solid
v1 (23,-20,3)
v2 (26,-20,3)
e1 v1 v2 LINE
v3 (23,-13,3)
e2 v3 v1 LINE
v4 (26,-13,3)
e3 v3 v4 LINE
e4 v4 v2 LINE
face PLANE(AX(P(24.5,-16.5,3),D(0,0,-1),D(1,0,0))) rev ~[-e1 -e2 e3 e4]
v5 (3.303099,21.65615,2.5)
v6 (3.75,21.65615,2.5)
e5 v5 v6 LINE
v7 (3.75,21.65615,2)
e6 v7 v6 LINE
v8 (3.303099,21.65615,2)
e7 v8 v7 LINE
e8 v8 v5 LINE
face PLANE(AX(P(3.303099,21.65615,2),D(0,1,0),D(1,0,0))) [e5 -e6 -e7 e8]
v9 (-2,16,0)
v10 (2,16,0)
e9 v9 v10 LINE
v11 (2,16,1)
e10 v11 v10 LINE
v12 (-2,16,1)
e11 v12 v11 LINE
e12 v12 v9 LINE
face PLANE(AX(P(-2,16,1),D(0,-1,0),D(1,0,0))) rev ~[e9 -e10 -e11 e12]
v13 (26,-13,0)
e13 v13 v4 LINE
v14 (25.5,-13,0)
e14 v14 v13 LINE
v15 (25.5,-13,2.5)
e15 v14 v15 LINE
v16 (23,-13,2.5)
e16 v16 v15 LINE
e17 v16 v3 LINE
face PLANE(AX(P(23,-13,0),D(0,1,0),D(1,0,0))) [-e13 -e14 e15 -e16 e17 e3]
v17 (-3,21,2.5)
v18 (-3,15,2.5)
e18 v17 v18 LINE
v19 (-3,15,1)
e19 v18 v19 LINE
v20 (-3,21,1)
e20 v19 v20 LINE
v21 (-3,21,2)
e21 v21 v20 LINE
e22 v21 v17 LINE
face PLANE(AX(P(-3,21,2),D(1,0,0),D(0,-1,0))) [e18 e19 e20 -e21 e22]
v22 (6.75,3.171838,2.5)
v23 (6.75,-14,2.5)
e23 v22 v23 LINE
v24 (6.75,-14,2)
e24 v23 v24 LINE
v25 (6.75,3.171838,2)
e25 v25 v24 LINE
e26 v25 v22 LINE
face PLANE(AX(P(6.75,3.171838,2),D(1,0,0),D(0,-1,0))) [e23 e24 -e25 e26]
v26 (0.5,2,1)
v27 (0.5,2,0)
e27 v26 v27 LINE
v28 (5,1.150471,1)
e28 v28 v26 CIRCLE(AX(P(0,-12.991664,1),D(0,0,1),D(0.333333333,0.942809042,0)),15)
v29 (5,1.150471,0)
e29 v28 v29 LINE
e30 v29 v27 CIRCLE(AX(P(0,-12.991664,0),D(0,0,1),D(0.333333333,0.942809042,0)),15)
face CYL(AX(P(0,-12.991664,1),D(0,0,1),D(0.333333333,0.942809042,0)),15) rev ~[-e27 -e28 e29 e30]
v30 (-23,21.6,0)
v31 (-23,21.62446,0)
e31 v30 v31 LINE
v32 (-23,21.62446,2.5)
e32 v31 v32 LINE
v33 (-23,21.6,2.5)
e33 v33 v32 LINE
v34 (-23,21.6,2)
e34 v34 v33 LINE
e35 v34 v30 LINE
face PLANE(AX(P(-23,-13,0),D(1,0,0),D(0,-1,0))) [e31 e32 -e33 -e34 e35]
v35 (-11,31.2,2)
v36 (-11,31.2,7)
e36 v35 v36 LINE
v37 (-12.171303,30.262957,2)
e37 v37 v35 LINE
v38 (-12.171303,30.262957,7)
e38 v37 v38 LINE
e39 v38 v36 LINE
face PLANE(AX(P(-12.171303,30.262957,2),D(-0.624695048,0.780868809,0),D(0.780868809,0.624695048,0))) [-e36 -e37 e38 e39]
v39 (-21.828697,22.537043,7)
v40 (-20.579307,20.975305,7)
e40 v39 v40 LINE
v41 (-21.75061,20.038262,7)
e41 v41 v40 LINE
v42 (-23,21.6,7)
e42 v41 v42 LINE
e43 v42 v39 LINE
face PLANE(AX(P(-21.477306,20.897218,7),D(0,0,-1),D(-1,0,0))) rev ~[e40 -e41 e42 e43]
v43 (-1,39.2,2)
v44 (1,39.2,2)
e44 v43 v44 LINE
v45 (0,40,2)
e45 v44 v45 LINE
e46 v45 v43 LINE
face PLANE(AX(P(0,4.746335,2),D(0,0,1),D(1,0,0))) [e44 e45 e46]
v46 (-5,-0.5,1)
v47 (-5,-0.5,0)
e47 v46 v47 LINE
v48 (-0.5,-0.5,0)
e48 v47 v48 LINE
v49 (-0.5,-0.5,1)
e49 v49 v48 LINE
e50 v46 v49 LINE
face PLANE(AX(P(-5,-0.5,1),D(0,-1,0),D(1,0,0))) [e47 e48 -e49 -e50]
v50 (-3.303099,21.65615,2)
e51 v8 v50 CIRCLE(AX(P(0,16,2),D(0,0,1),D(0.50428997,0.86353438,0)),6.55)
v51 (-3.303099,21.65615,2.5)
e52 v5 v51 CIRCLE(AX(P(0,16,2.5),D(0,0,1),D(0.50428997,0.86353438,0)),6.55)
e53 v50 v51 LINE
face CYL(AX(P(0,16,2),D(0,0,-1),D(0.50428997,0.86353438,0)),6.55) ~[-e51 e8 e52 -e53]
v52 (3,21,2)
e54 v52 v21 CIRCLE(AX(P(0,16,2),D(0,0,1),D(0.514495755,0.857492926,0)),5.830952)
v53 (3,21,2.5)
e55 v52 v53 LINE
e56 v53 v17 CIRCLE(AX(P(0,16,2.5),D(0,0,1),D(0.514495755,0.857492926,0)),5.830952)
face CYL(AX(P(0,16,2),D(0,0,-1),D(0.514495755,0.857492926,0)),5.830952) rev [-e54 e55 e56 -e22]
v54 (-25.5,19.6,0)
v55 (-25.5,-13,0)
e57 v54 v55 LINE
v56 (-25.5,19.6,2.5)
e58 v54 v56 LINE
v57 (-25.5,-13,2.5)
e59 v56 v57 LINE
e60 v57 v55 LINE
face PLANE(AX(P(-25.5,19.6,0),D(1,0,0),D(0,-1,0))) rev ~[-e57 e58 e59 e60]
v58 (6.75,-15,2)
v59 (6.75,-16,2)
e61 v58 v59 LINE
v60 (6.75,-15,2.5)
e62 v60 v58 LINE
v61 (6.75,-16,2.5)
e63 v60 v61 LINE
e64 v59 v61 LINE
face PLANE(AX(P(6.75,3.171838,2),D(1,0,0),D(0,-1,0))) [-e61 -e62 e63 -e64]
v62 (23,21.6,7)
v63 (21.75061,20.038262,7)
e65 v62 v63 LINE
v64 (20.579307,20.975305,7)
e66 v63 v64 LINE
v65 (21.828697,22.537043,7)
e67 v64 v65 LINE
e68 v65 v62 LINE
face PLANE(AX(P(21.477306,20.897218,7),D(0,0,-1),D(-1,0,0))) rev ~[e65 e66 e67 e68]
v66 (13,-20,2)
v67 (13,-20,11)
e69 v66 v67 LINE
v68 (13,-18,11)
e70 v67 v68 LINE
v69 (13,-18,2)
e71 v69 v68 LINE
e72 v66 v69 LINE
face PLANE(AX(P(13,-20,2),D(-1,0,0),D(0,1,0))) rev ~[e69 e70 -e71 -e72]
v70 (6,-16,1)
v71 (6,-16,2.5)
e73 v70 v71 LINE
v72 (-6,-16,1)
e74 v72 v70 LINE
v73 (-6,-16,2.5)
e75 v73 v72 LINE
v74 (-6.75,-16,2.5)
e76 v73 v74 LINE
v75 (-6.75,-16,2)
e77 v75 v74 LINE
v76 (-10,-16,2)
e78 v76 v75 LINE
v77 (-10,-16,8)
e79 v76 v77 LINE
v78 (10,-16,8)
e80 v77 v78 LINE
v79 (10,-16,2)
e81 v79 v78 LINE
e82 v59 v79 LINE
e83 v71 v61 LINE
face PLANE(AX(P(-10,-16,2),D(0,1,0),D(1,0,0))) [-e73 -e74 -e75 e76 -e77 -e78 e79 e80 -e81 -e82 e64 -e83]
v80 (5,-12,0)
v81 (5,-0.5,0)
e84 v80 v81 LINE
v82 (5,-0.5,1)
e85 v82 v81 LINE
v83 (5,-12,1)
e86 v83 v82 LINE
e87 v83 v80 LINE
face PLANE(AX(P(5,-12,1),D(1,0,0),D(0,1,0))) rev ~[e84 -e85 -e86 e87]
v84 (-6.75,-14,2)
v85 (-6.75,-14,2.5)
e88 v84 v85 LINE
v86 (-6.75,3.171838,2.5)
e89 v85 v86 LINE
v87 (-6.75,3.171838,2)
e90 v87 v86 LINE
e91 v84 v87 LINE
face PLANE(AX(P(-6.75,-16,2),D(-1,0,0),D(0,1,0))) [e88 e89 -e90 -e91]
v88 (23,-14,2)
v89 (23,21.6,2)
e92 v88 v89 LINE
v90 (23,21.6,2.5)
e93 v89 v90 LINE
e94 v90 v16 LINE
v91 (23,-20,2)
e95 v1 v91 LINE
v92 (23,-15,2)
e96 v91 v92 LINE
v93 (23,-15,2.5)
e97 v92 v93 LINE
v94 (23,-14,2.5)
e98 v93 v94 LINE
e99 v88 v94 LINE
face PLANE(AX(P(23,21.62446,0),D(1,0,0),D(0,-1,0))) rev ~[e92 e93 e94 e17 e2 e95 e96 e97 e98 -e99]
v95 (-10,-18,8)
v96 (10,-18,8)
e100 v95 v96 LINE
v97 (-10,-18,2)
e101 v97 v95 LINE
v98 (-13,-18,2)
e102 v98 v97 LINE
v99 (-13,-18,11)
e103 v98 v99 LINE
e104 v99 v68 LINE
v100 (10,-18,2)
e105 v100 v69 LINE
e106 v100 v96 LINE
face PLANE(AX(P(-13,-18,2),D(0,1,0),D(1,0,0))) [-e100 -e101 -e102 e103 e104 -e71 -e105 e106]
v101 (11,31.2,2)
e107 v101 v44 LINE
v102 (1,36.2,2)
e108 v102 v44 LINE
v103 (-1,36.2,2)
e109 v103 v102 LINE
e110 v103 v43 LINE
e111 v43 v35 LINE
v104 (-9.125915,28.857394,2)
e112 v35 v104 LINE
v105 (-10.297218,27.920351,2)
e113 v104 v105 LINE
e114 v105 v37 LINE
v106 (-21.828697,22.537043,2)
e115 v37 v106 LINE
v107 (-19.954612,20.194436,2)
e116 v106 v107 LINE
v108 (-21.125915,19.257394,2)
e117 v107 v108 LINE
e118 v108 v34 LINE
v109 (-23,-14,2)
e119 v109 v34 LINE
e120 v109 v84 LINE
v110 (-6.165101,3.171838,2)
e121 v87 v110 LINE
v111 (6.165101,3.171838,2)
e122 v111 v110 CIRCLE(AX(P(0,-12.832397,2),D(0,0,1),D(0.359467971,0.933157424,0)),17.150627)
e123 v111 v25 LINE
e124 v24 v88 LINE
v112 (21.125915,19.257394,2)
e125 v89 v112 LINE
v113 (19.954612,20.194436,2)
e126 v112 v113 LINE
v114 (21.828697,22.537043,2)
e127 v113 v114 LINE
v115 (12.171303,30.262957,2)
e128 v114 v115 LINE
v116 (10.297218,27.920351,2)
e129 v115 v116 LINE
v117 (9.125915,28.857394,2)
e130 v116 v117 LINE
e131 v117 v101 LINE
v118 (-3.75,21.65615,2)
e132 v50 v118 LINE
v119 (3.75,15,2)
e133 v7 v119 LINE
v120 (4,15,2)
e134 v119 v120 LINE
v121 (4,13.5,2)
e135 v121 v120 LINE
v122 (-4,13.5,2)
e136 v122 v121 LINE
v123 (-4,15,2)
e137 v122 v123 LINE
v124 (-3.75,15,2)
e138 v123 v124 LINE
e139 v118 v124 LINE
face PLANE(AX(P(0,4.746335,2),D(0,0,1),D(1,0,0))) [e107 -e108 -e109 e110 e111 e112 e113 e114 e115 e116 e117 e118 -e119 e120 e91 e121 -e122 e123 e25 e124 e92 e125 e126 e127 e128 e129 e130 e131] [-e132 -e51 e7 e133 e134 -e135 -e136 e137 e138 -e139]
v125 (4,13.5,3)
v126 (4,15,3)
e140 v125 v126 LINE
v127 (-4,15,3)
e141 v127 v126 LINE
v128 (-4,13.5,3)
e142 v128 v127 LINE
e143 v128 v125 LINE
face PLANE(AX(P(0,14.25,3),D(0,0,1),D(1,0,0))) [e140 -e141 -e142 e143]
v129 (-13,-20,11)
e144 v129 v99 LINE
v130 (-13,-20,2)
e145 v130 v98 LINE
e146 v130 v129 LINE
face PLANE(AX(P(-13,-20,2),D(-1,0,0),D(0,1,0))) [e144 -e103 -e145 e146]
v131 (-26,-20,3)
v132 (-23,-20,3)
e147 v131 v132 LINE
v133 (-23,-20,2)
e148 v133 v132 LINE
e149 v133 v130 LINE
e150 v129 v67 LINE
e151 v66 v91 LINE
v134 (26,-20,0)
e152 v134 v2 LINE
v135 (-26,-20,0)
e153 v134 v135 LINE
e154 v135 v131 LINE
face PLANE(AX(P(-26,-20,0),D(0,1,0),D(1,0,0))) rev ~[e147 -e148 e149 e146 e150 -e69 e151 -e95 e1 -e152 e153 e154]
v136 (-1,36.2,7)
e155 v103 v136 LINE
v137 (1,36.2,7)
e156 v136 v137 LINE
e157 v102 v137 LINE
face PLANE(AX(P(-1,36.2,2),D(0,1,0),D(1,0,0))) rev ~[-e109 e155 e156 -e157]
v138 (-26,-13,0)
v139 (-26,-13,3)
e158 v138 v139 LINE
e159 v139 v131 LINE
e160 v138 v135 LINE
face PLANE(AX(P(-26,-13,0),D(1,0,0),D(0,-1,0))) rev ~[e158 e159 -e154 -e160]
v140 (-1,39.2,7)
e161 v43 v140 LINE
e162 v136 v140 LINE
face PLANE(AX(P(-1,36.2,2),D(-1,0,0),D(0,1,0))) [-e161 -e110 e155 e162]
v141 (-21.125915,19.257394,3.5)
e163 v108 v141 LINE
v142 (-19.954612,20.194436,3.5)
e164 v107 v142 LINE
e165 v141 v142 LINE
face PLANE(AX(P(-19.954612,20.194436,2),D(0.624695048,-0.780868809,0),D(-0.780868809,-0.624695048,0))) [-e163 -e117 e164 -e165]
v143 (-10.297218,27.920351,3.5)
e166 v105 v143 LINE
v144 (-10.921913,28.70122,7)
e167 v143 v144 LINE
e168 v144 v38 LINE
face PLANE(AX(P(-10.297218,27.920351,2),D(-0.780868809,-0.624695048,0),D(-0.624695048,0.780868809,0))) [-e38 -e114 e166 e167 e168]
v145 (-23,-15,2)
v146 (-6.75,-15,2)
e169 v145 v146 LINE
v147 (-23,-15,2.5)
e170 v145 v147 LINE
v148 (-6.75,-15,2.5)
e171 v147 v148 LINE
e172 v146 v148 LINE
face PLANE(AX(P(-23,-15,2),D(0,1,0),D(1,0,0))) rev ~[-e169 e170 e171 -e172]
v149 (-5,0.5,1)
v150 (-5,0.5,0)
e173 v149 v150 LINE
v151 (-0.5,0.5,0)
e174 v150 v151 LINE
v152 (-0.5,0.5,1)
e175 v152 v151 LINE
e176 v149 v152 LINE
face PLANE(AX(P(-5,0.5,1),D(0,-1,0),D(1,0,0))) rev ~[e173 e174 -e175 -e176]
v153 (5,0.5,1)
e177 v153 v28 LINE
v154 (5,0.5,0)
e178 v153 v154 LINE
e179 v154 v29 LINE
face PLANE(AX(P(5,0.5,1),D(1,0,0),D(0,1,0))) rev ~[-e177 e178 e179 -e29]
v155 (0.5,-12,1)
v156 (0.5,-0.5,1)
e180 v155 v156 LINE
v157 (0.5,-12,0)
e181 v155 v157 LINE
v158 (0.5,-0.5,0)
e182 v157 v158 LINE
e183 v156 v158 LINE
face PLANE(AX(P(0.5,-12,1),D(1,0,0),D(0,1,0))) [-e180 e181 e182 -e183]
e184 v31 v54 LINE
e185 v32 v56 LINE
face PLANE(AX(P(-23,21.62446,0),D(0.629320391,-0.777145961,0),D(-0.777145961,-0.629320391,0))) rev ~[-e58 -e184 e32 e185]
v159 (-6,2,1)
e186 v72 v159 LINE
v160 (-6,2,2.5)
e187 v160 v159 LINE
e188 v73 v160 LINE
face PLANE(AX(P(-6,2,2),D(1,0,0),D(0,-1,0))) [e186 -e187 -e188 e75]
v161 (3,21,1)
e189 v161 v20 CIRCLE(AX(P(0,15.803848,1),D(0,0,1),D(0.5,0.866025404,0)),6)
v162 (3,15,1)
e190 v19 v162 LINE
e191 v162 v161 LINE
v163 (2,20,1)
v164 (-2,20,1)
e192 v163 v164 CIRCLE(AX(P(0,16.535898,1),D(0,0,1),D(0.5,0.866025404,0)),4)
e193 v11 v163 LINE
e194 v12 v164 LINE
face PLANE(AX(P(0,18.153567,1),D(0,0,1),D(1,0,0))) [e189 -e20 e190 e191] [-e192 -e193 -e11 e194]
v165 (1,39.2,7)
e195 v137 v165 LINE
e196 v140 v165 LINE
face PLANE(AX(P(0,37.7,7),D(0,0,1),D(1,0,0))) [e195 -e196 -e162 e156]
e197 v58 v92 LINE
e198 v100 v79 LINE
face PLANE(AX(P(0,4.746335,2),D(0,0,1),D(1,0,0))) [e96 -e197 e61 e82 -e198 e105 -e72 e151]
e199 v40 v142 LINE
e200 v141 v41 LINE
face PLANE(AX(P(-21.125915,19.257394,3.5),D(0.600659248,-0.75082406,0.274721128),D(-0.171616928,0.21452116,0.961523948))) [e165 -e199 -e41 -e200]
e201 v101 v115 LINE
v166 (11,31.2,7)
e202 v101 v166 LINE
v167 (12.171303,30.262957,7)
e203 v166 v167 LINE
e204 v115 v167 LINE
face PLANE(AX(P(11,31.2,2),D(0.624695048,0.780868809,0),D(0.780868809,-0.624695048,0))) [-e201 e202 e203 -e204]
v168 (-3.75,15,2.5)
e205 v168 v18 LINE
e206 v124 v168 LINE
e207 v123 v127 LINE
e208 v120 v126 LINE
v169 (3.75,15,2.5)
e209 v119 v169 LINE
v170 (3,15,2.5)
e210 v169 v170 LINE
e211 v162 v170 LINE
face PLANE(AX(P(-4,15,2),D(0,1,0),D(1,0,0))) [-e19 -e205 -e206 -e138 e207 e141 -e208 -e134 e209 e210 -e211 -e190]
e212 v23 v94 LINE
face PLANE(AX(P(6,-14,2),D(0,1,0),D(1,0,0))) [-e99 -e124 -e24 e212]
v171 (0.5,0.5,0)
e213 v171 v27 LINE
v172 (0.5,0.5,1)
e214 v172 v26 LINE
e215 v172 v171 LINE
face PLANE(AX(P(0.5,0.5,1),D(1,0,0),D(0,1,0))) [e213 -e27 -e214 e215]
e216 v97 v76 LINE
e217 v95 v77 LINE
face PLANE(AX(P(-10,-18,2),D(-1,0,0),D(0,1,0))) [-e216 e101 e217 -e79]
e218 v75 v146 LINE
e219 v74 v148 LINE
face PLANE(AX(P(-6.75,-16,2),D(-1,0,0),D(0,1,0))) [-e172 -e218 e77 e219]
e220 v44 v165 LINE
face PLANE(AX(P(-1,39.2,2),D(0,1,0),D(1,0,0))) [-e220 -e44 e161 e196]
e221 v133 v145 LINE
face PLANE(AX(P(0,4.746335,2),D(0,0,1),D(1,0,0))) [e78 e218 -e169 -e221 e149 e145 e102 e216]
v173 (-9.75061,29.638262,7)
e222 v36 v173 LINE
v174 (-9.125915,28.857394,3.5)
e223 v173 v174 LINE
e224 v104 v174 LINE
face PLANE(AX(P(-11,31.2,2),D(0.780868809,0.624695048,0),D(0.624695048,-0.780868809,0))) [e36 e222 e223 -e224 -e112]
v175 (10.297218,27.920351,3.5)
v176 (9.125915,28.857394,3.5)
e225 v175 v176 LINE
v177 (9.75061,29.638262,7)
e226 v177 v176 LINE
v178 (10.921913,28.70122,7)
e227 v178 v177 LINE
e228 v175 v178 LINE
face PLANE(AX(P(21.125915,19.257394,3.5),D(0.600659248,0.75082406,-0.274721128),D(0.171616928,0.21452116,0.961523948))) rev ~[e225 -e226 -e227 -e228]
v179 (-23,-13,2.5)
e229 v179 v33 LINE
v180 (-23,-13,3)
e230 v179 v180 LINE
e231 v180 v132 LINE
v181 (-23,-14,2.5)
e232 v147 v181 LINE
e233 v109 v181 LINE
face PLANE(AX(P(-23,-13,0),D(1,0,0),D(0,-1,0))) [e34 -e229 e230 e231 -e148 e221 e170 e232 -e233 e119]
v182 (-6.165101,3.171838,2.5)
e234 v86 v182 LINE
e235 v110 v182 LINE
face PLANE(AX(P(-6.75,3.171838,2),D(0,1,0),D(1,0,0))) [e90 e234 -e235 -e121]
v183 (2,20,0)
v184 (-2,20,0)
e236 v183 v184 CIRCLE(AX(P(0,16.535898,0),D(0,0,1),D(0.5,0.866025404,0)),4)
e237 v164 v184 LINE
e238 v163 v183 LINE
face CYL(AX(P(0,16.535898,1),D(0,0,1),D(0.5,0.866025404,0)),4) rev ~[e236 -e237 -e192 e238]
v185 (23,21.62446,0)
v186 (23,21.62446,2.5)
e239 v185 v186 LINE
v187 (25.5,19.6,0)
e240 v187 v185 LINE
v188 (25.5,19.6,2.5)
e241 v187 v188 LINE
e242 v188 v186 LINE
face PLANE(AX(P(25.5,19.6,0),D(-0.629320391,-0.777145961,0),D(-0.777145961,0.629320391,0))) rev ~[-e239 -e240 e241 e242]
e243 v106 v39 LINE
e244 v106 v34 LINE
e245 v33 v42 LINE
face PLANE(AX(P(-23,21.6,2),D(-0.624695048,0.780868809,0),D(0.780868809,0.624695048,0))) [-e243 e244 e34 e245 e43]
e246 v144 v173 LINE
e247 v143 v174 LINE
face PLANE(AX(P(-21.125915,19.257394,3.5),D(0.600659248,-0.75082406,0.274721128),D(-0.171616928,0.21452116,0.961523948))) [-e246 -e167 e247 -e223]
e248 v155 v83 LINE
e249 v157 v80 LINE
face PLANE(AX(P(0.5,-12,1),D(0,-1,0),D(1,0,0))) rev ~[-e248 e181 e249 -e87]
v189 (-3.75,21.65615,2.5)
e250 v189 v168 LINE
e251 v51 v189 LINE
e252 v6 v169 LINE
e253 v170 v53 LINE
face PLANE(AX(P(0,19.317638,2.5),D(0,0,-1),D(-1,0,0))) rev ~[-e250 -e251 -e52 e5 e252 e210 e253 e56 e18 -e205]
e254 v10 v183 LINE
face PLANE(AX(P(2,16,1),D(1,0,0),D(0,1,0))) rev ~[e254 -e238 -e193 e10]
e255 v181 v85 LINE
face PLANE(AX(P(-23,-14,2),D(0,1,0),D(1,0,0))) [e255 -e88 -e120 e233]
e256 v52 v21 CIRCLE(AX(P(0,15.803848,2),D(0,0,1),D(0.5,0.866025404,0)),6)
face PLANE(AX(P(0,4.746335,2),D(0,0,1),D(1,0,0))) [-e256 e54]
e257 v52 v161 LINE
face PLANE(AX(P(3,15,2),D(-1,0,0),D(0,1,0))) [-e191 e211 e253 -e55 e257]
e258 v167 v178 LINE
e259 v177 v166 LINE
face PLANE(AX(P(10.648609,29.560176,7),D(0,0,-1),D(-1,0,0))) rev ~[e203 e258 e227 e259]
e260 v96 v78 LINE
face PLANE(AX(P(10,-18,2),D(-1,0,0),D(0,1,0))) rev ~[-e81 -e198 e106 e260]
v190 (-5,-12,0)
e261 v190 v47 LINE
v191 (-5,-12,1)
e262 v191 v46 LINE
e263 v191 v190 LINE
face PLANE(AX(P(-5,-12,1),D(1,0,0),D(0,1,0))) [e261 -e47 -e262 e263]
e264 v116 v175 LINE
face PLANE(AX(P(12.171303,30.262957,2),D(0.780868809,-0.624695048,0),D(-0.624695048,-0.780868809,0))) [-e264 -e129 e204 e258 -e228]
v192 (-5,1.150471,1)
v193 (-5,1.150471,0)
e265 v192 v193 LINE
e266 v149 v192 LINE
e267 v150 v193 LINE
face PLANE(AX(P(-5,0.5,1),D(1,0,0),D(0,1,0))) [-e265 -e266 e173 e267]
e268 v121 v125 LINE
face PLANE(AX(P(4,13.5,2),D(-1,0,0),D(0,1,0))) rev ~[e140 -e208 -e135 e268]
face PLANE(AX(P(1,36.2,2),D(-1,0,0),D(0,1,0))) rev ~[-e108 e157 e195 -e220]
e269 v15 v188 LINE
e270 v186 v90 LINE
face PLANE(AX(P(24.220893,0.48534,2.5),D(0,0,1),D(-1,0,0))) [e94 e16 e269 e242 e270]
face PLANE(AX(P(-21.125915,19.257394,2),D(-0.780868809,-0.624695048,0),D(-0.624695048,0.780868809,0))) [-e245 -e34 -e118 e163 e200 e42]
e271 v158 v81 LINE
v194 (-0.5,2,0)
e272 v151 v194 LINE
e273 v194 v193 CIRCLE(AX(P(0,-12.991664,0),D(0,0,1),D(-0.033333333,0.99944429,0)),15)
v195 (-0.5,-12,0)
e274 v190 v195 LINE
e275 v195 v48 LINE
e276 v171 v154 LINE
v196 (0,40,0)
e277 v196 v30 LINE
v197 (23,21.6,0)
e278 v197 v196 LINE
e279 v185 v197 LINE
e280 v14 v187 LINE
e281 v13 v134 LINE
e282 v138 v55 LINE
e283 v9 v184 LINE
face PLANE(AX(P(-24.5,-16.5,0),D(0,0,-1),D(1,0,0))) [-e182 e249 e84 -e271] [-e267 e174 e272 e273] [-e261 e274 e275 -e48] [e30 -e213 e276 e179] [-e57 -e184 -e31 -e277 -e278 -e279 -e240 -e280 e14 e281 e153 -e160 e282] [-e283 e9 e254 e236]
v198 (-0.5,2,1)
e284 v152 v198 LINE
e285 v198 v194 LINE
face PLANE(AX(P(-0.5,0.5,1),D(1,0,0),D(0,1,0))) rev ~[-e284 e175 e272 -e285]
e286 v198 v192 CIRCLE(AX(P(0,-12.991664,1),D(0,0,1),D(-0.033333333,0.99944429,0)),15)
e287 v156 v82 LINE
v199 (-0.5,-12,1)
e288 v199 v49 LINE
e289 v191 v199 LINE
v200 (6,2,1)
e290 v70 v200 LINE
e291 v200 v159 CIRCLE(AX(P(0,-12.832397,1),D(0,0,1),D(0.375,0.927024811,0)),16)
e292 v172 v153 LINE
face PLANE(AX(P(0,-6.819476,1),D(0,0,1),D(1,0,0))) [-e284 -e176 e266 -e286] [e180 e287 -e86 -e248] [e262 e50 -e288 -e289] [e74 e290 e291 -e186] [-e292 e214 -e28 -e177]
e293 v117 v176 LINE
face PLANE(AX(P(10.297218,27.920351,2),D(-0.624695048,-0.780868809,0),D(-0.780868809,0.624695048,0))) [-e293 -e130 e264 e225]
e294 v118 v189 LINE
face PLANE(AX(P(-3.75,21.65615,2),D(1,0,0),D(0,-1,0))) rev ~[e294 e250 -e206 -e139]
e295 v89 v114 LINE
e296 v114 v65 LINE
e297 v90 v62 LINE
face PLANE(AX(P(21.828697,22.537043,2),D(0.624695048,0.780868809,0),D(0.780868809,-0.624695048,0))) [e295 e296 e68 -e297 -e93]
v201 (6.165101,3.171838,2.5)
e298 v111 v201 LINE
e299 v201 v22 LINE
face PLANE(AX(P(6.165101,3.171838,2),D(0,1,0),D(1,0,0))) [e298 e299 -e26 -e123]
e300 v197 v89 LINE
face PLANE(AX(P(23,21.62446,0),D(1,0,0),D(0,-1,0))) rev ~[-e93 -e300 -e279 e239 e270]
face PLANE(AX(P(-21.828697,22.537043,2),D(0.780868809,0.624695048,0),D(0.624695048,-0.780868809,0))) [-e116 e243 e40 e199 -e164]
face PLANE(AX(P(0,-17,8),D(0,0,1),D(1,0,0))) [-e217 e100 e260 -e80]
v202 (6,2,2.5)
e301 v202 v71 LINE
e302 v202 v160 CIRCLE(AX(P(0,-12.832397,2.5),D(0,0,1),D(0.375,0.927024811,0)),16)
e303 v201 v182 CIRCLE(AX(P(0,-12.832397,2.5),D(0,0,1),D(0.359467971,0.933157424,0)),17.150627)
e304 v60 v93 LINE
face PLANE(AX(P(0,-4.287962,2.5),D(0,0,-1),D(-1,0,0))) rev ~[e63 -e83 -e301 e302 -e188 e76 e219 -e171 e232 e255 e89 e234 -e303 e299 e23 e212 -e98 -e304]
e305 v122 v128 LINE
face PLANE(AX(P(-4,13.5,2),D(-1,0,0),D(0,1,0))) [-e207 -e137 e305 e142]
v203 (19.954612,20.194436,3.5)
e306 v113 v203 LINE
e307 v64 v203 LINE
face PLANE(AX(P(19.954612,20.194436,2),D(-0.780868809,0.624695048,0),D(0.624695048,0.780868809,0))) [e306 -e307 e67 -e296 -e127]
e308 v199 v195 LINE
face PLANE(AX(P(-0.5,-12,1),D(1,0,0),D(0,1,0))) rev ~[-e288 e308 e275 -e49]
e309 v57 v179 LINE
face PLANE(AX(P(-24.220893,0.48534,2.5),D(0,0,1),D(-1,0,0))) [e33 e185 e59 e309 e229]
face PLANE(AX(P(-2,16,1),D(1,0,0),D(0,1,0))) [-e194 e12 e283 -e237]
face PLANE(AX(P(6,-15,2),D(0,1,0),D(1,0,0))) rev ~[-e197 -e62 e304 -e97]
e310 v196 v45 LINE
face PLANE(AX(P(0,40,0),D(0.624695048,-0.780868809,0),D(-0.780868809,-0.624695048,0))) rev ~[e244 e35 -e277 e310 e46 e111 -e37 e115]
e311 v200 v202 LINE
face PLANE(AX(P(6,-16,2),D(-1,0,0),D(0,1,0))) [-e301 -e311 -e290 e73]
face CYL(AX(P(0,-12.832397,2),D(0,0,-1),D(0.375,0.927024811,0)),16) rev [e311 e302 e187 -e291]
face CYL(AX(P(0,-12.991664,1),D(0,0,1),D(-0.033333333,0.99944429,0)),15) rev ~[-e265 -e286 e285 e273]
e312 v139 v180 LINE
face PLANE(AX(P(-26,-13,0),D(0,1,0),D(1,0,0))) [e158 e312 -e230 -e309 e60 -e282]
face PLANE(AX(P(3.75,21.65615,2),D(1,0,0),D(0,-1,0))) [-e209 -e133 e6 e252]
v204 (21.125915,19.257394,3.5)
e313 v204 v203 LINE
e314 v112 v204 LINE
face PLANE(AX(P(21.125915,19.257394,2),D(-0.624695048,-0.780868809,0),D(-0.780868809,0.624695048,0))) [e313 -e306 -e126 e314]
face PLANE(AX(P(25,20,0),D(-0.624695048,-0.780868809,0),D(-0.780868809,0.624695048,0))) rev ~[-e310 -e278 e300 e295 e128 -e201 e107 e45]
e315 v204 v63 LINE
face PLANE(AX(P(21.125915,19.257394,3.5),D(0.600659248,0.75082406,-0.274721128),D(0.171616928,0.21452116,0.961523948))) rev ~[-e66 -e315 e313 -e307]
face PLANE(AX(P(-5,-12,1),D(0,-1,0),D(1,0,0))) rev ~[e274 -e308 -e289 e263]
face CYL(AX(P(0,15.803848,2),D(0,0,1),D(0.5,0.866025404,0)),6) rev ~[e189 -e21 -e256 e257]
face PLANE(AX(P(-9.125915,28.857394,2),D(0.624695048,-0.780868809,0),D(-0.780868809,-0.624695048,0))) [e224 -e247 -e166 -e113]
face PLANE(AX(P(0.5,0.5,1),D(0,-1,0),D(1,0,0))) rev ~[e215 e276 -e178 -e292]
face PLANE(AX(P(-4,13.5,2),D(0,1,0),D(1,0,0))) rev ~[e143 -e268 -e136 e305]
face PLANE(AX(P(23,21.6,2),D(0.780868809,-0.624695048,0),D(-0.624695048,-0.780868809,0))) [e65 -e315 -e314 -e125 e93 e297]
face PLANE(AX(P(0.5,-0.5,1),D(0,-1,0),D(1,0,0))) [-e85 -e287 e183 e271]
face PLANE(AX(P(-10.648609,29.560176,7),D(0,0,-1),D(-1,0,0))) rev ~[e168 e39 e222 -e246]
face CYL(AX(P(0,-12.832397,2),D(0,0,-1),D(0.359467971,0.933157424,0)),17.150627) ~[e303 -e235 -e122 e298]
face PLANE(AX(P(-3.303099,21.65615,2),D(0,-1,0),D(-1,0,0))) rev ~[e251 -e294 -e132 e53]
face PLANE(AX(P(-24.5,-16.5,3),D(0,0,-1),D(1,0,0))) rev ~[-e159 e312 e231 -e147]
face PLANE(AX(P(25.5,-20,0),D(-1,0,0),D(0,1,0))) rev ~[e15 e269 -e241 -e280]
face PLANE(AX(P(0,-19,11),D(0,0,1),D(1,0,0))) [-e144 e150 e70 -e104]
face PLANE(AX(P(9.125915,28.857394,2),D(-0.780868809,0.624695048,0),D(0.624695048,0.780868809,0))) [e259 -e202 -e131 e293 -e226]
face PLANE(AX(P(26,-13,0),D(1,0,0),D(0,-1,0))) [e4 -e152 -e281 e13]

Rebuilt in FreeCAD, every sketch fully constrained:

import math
import FreeCAD as App
import Part
import Sketcher
from FreeCAD import Vector
Q = App.Units.Quantity


def add_polygon(sketch, points):
    """Adds a closed chain of lines whose ends are joined by coincident constraints."""
    first, n = sketch.GeometryCount, len(points)
    for a, b in zip(points, points[1:] + points[:1]):
        sketch.addGeometry(Part.LineSegment(App.Vector(*a, 0), App.Vector(*b, 0)), False)
    for i in range(n):
        sketch.addConstraint(Sketcher.Constraint("Coincident", first + i, 2, first + (i + 1) % n, 1))

doc = App.newDocument("Part")
body = doc.addObject("PartDesign::Body", "Body")

sketch1 = doc.addObject("Sketcher::SketchObject", "Sketch")
body.addObject(sketch1)
sketch1.AttachmentSupport = (doc.XY_Plane, [""])
sketch1.MapMode = "FlatFace"
add_polygon(sketch1, [(-25, -20), (25, -20), (25, 20), (0, 40), (-25, 20)])
sketch1.addConstraint(Sketcher.Constraint("Horizontal", 0))
sketch1.addConstraint(Sketcher.Constraint("Vertical", 1))
sketch1.addConstraint(Sketcher.Constraint("Vertical", 4))
sketch1.addConstraint(Sketcher.Constraint("Symmetric", 0, 2, 3, 2, -1, 1))
sketch1.addConstraint(Sketcher.Constraint("PointOnObject", 2, 2, -2))
sketch1.addConstraint(Sketcher.Constraint("Horizontal", 1, 2, 3, 2))
sketch1.addConstraint(Sketcher.Constraint("DistanceX", 0, 1, 0, 2, 50.0))
sketch1.addConstraint(Sketcher.Constraint("DistanceY", 1, 1, 1, 2, 40.0))
sketch1.addConstraint(Sketcher.Constraint("DistanceY", -1, 1, 2, 2, 40.0))
pad1 = doc.addObject("PartDesign::Pad", "Pad")
body.addObject(pad1)
pad1.Profile = sketch1
pad1.Length = 2

sketch2 = doc.addObject("Sketcher::SketchObject", "Sketch001")
body.addObject(sketch2)
sketch2.AttachmentSupport = (doc.XY_Plane, [""])
sketch2.MapMode = "FlatFace"
sketch2.AttachmentOffset = App.Placement(Vector(0, 0, 2), App.Rotation())
sketch2.addGeometry(Part.LineSegment(Vector(-3, 15, 0), Vector(3, 15, 0)), False)
sketch2.addGeometry(Part.LineSegment(Vector(3, 15, 0), Vector(3, 21, 0)), False)
sketch2.addGeometry(Part.ArcOfCircle(Part.Circle(Vector(0, 15.803848, 0), Vector(0, 0, 1), 6), math.radians(60), math.radians(120)), False)
sketch2.addGeometry(Part.LineSegment(Vector(-3, 21, 0), Vector(-3, 15, 0)), False)
sketch2.addGeometry(Part.LineSegment(Vector(-6, -16, 0), Vector(6, -16, 0)), False)
sketch2.addGeometry(Part.LineSegment(Vector(6, -16, 0), Vector(6, 2, 0)), False)
sketch2.addGeometry(Part.ArcOfCircle(Part.Circle(Vector(0, -12.832397, 0), Vector(0, 0, 1), 16), math.radians(67.975687), math.radians(112.024313)), False)
sketch2.addGeometry(Part.LineSegment(Vector(-6, 2, 0), Vector(-6, -16, 0)), False)
sketch2.addConstraint(Sketcher.Constraint("Coincident", 0, 2, 1, 1))
sketch2.addConstraint(Sketcher.Constraint("Coincident", 1, 2, 2, 1))
sketch2.addConstraint(Sketcher.Constraint("Coincident", 2, 2, 3, 1))
sketch2.addConstraint(Sketcher.Constraint("Coincident", 3, 2, 0, 1))
sketch2.addConstraint(Sketcher.Constraint("Coincident", 4, 2, 5, 1))
sketch2.addConstraint(Sketcher.Constraint("Coincident", 5, 2, 6, 1))
sketch2.addConstraint(Sketcher.Constraint("Coincident", 6, 2, 7, 1))
sketch2.addConstraint(Sketcher.Constraint("Coincident", 7, 2, 4, 1))
sketch2.addConstraint(Sketcher.Constraint("Horizontal", 0))
sketch2.addConstraint(Sketcher.Constraint("Vertical", 1))
sketch2.addConstraint(Sketcher.Constraint("Vertical", 3))
sketch2.addConstraint(Sketcher.Constraint("Horizontal", 4))
sketch2.addConstraint(Sketcher.Constraint("Vertical", 5))
sketch2.addConstraint(Sketcher.Constraint("Vertical", 7))
sketch2.addConstraint(Sketcher.Constraint("Symmetric", 1, 2, 2, 2, -2))
sketch2.addConstraint(Sketcher.Constraint("Symmetric", 5, 2, 6, 2, -2))
sketch2.addConstraint(Sketcher.Constraint("Equal", 0, 1))
sketch2.addConstraint(Sketcher.Constraint("Radius", 2, 6.0))
sketch2.addConstraint(Sketcher.Constraint("Radius", 6, 16.0))
sketch2.addConstraint(Sketcher.Constraint("DistanceX", 0, 1, 0, 2, 6.0))
sketch2.addConstraint(Sketcher.Constraint("DistanceX", 4, 1, 4, 2, 12.0))
sketch2.addConstraint(Sketcher.Constraint("DistanceY", 5, 1, 5, 2, 18.0))
sketch2.addConstraint(Sketcher.Constraint("DistanceY", -1, 1, 0, 2, 15.0))
sketch2.addConstraint(Sketcher.Constraint("DistanceY", 4, 2, -1, 1, 16.0))
pocket1 = doc.addObject("PartDesign::Pocket", "Pocket")
body.addObject(pocket1)
pocket1.Profile = sketch2
pocket1.Length = 1

sketch3 = doc.addObject("Sketcher::SketchObject", "Sketch002")
body.addObject(sketch3)
sketch3.AttachmentSupport = (doc.XY_Plane, [""])
sketch3.MapMode = "FlatFace"
sketch3.AttachmentOffset = App.Placement(Vector(0, 0, 1), App.Rotation())
sketch3.addGeometry(Part.LineSegment(Vector(-2, 16, 0), Vector(2, 16, 0)), False)
sketch3.addGeometry(Part.LineSegment(Vector(2, 16, 0), Vector(2, 20, 0)), False)
sketch3.addGeometry(Part.ArcOfCircle(Part.Circle(Vector(0, 16.535898, 0), Vector(0, 0, 1), 4), math.radians(60), math.radians(120)), False)
sketch3.addGeometry(Part.LineSegment(Vector(-2, 20, 0), Vector(-2, 16, 0)), False)
add_polygon(sketch3, [(-5, -0.5), (-5, -12), (-0.5, -12), (-0.5, -0.5)])
add_polygon(sketch3, [(0.5, -0.5), (0.5, -12), (5, -12), (5, -0.5)])
sketch3.addGeometry(Part.LineSegment(Vector(-5, 0.5, 0), Vector(-0.5, 0.5, 0)), False)
sketch3.addGeometry(Part.LineSegment(Vector(-0.5, 0.5, 0), Vector(-0.5, 2, 0)), False)
sketch3.addGeometry(Part.ArcOfCircle(Part.Circle(Vector(0, -12.991664, 0), Vector(0, 0, 1), 15), math.radians(91.910213), math.radians(109.471221)), False)
sketch3.addGeometry(Part.LineSegment(Vector(-5, 1.150471, 0), Vector(-5, 0.5, 0)), False)
sketch3.addGeometry(Part.LineSegment(Vector(0.5, 0.5, 0), Vector(5, 0.5, 0)), False)
sketch3.addGeometry(Part.LineSegment(Vector(5, 0.5, 0), Vector(5, 1.150471, 0)), False)
sketch3.addGeometry(Part.ArcOfCircle(Part.Circle(Vector(0, -12.991664, 0), Vector(0, 0, 1), 15), math.radians(70.528779), math.radians(88.089787)), False)
sketch3.addGeometry(Part.LineSegment(Vector(0.5, 2, 0), Vector(0.5, 0.5, 0)), False)
sketch3.addConstraint(Sketcher.Constraint("Coincident", 0, 2, 1, 1))
sketch3.addConstraint(Sketcher.Constraint("Coincident", 1, 2, 2, 1))
sketch3.addConstraint(Sketcher.Constraint("Coincident", 2, 2, 3, 1))
sketch3.addConstraint(Sketcher.Constraint("Coincident", 3, 2, 0, 1))
sketch3.addConstraint(Sketcher.Constraint("Coincident", 12, 2, 13, 1))
sketch3.addConstraint(Sketcher.Constraint("Coincident", 13, 2, 14, 1))
sketch3.addConstraint(Sketcher.Constraint("Coincident", 14, 2, 15, 1))
sketch3.addConstraint(Sketcher.Constraint("Coincident", 15, 2, 12, 1))
sketch3.addConstraint(Sketcher.Constraint("Coincident", 16, 2, 17, 1))
sketch3.addConstraint(Sketcher.Constraint("Coincident", 17, 2, 18, 1))
sketch3.addConstraint(Sketcher.Constraint("Coincident", 18, 2, 19, 1))
sketch3.addConstraint(Sketcher.Constraint("Coincident", 19, 2, 16, 1))
sketch3.addConstraint(Sketcher.Constraint("Horizontal", 0))
sketch3.addConstraint(Sketcher.Constraint("Vertical", 1))
sketch3.addConstraint(Sketcher.Constraint("Vertical", 3))
sketch3.addConstraint(Sketcher.Constraint("Vertical", 4))
sketch3.addConstraint(Sketcher.Constraint("Horizontal", 5))
sketch3.addConstraint(Sketcher.Constraint("Vertical", 6))
sketch3.addConstraint(Sketcher.Constraint("Horizontal", 7))
sketch3.addConstraint(Sketcher.Constraint("Vertical", 8))
sketch3.addConstraint(Sketcher.Constraint("Horizontal", 9))
sketch3.addConstraint(Sketcher.Constraint("Vertical", 10))
sketch3.addConstraint(Sketcher.Constraint("Horizontal", 11))
sketch3.addConstraint(Sketcher.Constraint("Horizontal", 12))
sketch3.addConstraint(Sketcher.Constraint("Vertical", 13))
sketch3.addConstraint(Sketcher.Constraint("Vertical", 15))
sketch3.addConstraint(Sketcher.Constraint("Horizontal", 16))
sketch3.addConstraint(Sketcher.Constraint("Vertical", 17))
sketch3.addConstraint(Sketcher.Constraint("Vertical", 19))
sketch3.addConstraint(Sketcher.Constraint("Coincident", 18, 3, 14, 3))
sketch3.addConstraint(Sketcher.Constraint("Equal", 14, 18))
sketch3.addConstraint(Sketcher.Constraint("Symmetric", 11, 2, 12, 2, -1, 1))
sketch3.addConstraint(Sketcher.Constraint("Symmetric", 7, 2, 16, 2, -1, 1))
sketch3.addConstraint(Sketcher.Constraint("Symmetric", 1, 2, 2, 2, -2))
sketch3.addConstraint(Sketcher.Constraint("Symmetric", 5, 2, 8, 2, -2))
sketch3.addConstraint(Sketcher.Constraint("Symmetric", 7, 2, 10, 2, -2))
sketch3.addConstraint(Sketcher.Constraint("Symmetric", 14, 2, 17, 2, -2))
sketch3.addConstraint(Sketcher.Constraint("Horizontal", 13, 2, 18, 2))
sketch3.addConstraint(Sketcher.Constraint("Equal", 0, 1))
sketch3.addConstraint(Sketcher.Constraint("Radius", 2, 4.0))
sketch3.addConstraint(Sketcher.Constraint("Radius", 14, 15.0))
sketch3.addConstraint(Sketcher.Constraint("DistanceX", 0, 1, 0, 2, 4.0))
sketch3.addConstraint(Sketcher.Constraint("DistanceX", 5, 1, 5, 2, 4.5))
sketch3.addConstraint(Sketcher.Constraint("DistanceY", 4, 2, 4, 1, 11.5))
sketch3.addConstraint(Sketcher.Constraint("DistanceY", 13, 1, 13, 2, 1.5))
sketch3.addConstraint(Sketcher.Constraint("DistanceY", -1, 1, 0, 2, 16.0))
sketch3.addConstraint(Sketcher.Constraint("DistanceX", 4, 2, -1, 1, 5.0))
sketch3.addConstraint(Sketcher.Constraint("DistanceY", 4, 2, -1, 1, 12.0))
pocket2 = doc.addObject("PartDesign::Pocket", "Pocket001")
body.addObject(pocket2)
pocket2.Profile = sketch3
pocket2.Length = 5

sketch4 = doc.addObject("Sketcher::SketchObject", "Sketch003")
body.addObject(sketch4)
sketch4.AttachmentSupport = (doc.XY_Plane, [""])
sketch4.MapMode = "FlatFace"
sketch4.AttachmentOffset = App.Placement(Vector(0, 0, 2), App.Rotation())
add_polygon(sketch4, [(-4, 15), (-4, 13.5), (4, 13.5), (4, 15)])
sketch4.addConstraint(Sketcher.Constraint("Vertical", 0))
sketch4.addConstraint(Sketcher.Constraint("Horizontal", 1))
sketch4.addConstraint(Sketcher.Constraint("Vertical", 2))
sketch4.addConstraint(Sketcher.Constraint("Horizontal", 3))
sketch4.addConstraint(Sketcher.Constraint("DistanceX", 1, 1, 1, 2, 8.0))
sketch4.addConstraint(Sketcher.Constraint("DistanceY", 0, 2, 0, 1, 1.5))
sketch4.addConstraint(Sketcher.Constraint("DistanceX", 0, 2, -1, 1, 4.0))
sketch4.addConstraint(Sketcher.Constraint("DistanceY", -1, 1, 2, 2, 15.0))
pad2 = doc.addObject("PartDesign::Pad", "Pad001")
body.addObject(pad2)
pad2.Profile = sketch4
pad2.Length = 1

sketch5 = doc.addObject("Sketcher::SketchObject", "Sketch004")
body.addObject(sketch5)
sketch5.AttachmentSupport = (doc.XY_Plane, [""])
sketch5.MapMode = "FlatFace"
sketch5.AttachmentOffset = App.Placement(Vector(0, 0, 2), App.Rotation())
add_polygon(sketch5, [(-13, -18), (-13, -20), (13, -20), (13, -18)])
sketch5.addConstraint(Sketcher.Constraint("Vertical", 0))
sketch5.addConstraint(Sketcher.Constraint("Horizontal", 1))
sketch5.addConstraint(Sketcher.Constraint("Vertical", 2))
sketch5.addConstraint(Sketcher.Constraint("Horizontal", 3))
sketch5.addConstraint(Sketcher.Constraint("DistanceX", 1, 1, 1, 2, 26.0))
sketch5.addConstraint(Sketcher.Constraint("DistanceY", 0, 2, 0, 1, 2.0))
sketch5.addConstraint(Sketcher.Constraint("DistanceX", 0, 2, -1, 1, 13.0))
sketch5.addConstraint(Sketcher.Constraint("DistanceY", 0, 2, -1, 1, 20.0))
pad3 = doc.addObject("PartDesign::Pad", "Pad002")
body.addObject(pad3)
pad3.Profile = sketch5
pad3.Length = 9

sketch6 = doc.addObject("Sketcher::SketchObject", "Sketch005")
body.addObject(sketch6)
sketch6.AttachmentSupport = (doc.XY_Plane, [""])
sketch6.MapMode = "FlatFace"
sketch6.AttachmentOffset = App.Placement(Vector(0, 0, 2), App.Rotation())
add_polygon(sketch6, [(-10, -16), (-10, -18), (10, -18), (10, -16)])
sketch6.addConstraint(Sketcher.Constraint("Vertical", 0))
sketch6.addConstraint(Sketcher.Constraint("Horizontal", 1))
sketch6.addConstraint(Sketcher.Constraint("Vertical", 2))
sketch6.addConstraint(Sketcher.Constraint("Horizontal", 3))
sketch6.addConstraint(Sketcher.Constraint("DistanceX", 1, 1, 1, 2, 20.0))
sketch6.addConstraint(Sketcher.Constraint("DistanceY", 0, 2, 0, 1, 2.0))
sketch6.addConstraint(Sketcher.Constraint("DistanceX", 0, 2, -1, 1, 10.0))
sketch6.addConstraint(Sketcher.Constraint("DistanceY", 0, 2, -1, 1, 18.0))
pad4 = doc.addObject("PartDesign::Pad", "Pad003")
body.addObject(pad4)
pad4.Profile = sketch6
pad4.Length = 6

sketch7 = doc.addObject("Sketcher::SketchObject", "Sketch006")
body.addObject(sketch7)
sketch7.AttachmentSupport = (doc.XY_Plane, [""])
sketch7.MapMode = "FlatFace"
add_polygon(sketch7, [(-26, -20), (-26, -13), (-23, -13), (-23, -20)])
add_polygon(sketch7, [(23, -20), (23, -13), (26, -13), (26, -20)])
sketch7.addConstraint(Sketcher.Constraint("Vertical", 0))
sketch7.addConstraint(Sketcher.Constraint("Horizontal", 1))
sketch7.addConstraint(Sketcher.Constraint("Vertical", 2))
sketch7.addConstraint(Sketcher.Constraint("Horizontal", 3))
sketch7.addConstraint(Sketcher.Constraint("Vertical", 4))
sketch7.addConstraint(Sketcher.Constraint("Horizontal", 5))
sketch7.addConstraint(Sketcher.Constraint("Vertical", 6))
sketch7.addConstraint(Sketcher.Constraint("Horizontal", 7))
sketch7.addConstraint(Sketcher.Constraint("Symmetric", 1, 2, 4, 2, -2))
sketch7.addConstraint(Sketcher.Constraint("Symmetric", 3, 2, 6, 2, -2))
sketch7.addConstraint(Sketcher.Constraint("DistanceX", 1, 1, 1, 2, 3.0))
sketch7.addConstraint(Sketcher.Constraint("DistanceY", 0, 1, 0, 2, 7.0))
sketch7.addConstraint(Sketcher.Constraint("DistanceX", 0, 2, -1, 1, 26.0))
sketch7.addConstraint(Sketcher.Constraint("DistanceY", 0, 2, -1, 1, 13.0))
pad5 = doc.addObject("PartDesign::Pad", "Pad004")
body.addObject(pad5)
pad5.Profile = sketch7
pad5.Length = 3

sketch8 = doc.addObject("Sketcher::SketchObject", "Sketch007")
body.addObject(sketch8)
sketch8.AttachmentSupport = (doc.XY_Plane, [""])
sketch8.MapMode = "FlatFace"
add_polygon(sketch8, [(-23, -20), (-25.5, -20), (-25.5, 19.6), (-23, 21.62446)])
add_polygon(sketch8, [(25.5, -20), (23, -20), (23, 21.62446), (25.5, 19.6)])
sketch8.addConstraint(Sketcher.Constraint("Horizontal", 0))
sketch8.addConstraint(Sketcher.Constraint("Vertical", 1))
sketch8.addConstraint(Sketcher.Constraint("Vertical", 3))
sketch8.addConstraint(Sketcher.Constraint("Horizontal", 4))
sketch8.addConstraint(Sketcher.Constraint("Vertical", 5))
sketch8.addConstraint(Sketcher.Constraint("Vertical", 7))
sketch8.addConstraint(Sketcher.Constraint("Symmetric", 3, 2, 4, 2, -2))
sketch8.addConstraint(Sketcher.Constraint("Symmetric", 1, 2, 6, 2, -2))
sketch8.addConstraint(Sketcher.Constraint("Horizontal", 2, 2, 5, 2))
sketch8.addConstraint(Sketcher.Constraint("Angle", 2, Q("39 deg")))
sketch8.addConstraint(Sketcher.Constraint("DistanceX", 0, 2, 0, 1, 2.5))
sketch8.addConstraint(Sketcher.Constraint("DistanceY", 1, 1, 1, 2, 39.6))
sketch8.addConstraint(Sketcher.Constraint("DistanceY", 0, 2, -1, 1, 20.0))
sketch8.addConstraint(Sketcher.Constraint("DistanceX", 2, 2, -1, 1, 23.0))
pad6 = doc.addObject("PartDesign::Pad", "Pad005")
body.addObject(pad6)
pad6.Profile = sketch8
pad6.Length = 2.5

sketch9 = doc.addObject("Sketcher::SketchObject", "Sketch008")
body.addObject(sketch9)
sketch9.AttachmentSupport = (doc.XY_Plane, [""])
sketch9.MapMode = "FlatFace"
sketch9.AttachmentOffset = App.Placement(Vector(0, 0, 2), App.Rotation())
add_polygon(sketch9, [(-23, -14), (-23, -15), (-6, -15), (-6, -14)])
add_polygon(sketch9, [(6, -14), (6, -15), (23, -15), (23, -14)])
sketch9.addConstraint(Sketcher.Constraint("Vertical", 0))
sketch9.addConstraint(Sketcher.Constraint("Horizontal", 1))
sketch9.addConstraint(Sketcher.Constraint("Vertical", 2))
sketch9.addConstraint(Sketcher.Constraint("Horizontal", 3))
sketch9.addConstraint(Sketcher.Constraint("Vertical", 4))
sketch9.addConstraint(Sketcher.Constraint("Horizontal", 5))
sketch9.addConstraint(Sketcher.Constraint("Vertical", 6))
sketch9.addConstraint(Sketcher.Constraint("Horizontal", 7))
sketch9.addConstraint(Sketcher.Constraint("Symmetric", 1, 2, 4, 2, -2))
sketch9.addConstraint(Sketcher.Constraint("Symmetric", 3, 2, 6, 2, -2))
sketch9.addConstraint(Sketcher.Constraint("DistanceX", 1, 1, 1, 2, 17.0))
sketch9.addConstraint(Sketcher.Constraint("DistanceY", 0, 2, 0, 1, 1.0))
sketch9.addConstraint(Sketcher.Constraint("DistanceX", 0, 2, -1, 1, 23.0))
sketch9.addConstraint(Sketcher.Constraint("DistanceY", 0, 2, -1, 1, 15.0))
pad7 = doc.addObject("PartDesign::Pad", "Pad006")
body.addObject(pad7)
pad7.Profile = sketch9
pad7.Length = 0.5

sketch10 = doc.addObject("Sketcher::SketchObject", "Sketch009")
body.addObject(sketch10)
sketch10.AttachmentSupport = (doc.XY_Plane, [""])
sketch10.MapMode = "FlatFace"
sketch10.AttachmentOffset = App.Placement(Vector(0, 0, 2), App.Rotation())
sketch10.addGeometry(Part.ArcOfCircle(Part.Circle(Vector(0, 16, 0), Vector(0, 0, 1), 5.830952), math.radians(59.036243), math.radians(120.963757)), False)
sketch10.addGeometry(Part.LineSegment(Vector(3, 21, 0), Vector(3, 15, 0)), False)
sketch10.addGeometry(Part.LineSegment(Vector(3, 15, 0), Vector(3.75, 15, 0)), False)
sketch10.addGeometry(Part.LineSegment(Vector(3.75, 15, 0), Vector(3.75, 21.65615, 0)), False)
sketch10.addGeometry(Part.LineSegment(Vector(3.75, 21.65615, 0), Vector(3.303099, 21.65615, 0)), False)
sketch10.addGeometry(Part.ArcOfCircle(Part.Circle(Vector(0, 16, 0), Vector(0, 0, 1), 6.55), math.radians(59.71577), math.radians(120.28423)), False)
sketch10.addGeometry(Part.LineSegment(Vector(-3.303099, 21.65615, 0), Vector(-3.75, 21.65615, 0)), False)
sketch10.addGeometry(Part.LineSegment(Vector(-3.75, 21.65615, 0), Vector(-3.75, 15, 0)), False)
sketch10.addGeometry(Part.LineSegment(Vector(-3.75, 15, 0), Vector(-3, 15, 0)), False)
sketch10.addGeometry(Part.LineSegment(Vector(-3, 15, 0), Vector(-3, 21, 0)), False)
sketch10.addGeometry(Part.LineSegment(Vector(-6, -16, 0), Vector(-6, 2, 0)), False)
sketch10.addGeometry(Part.ArcOfCircle(Part.Circle(Vector(0, -12.832397, 0), Vector(0, 0, 1), 16), math.radians(67.975687), math.radians(112.024313)), False)
sketch10.addGeometry(Part.LineSegment(Vector(6, 2, 0), Vector(6, -16, 0)), False)
sketch10.addGeometry(Part.LineSegment(Vector(6, -16, 0), Vector(6.75, -16, 0)), False)
sketch10.addGeometry(Part.LineSegment(Vector(6.75, -16, 0), Vector(6.75, 3.171838, 0)), False)
sketch10.addGeometry(Part.LineSegment(Vector(6.75, 3.171838, 0), Vector(6.165101, 3.171838, 0)), False)
sketch10.addGeometry(Part.ArcOfCircle(Part.Circle(Vector(0, -12.832397, 0), Vector(0, 0, 1), 17.150627), math.radians(68.932474), math.radians(111.067526)), False)
sketch10.addGeometry(Part.LineSegment(Vector(-6.165101, 3.171838, 0), Vector(-6.75, 3.171838, 0)), False)
sketch10.addGeometry(Part.LineSegment(Vector(-6.75, 3.171838, 0), Vector(-6.75, -16, 0)), False)
sketch10.addGeometry(Part.LineSegment(Vector(-6.75, -16, 0), Vector(-6, -16, 0)), False)
sketch10.addConstraint(Sketcher.Constraint("Coincident", 0, 1, 1, 1))
sketch10.addConstraint(Sketcher.Constraint("Coincident", 1, 2, 2, 1))
sketch10.addConstraint(Sketcher.Constraint("Coincident", 2, 2, 3, 1))
sketch10.addConstraint(Sketcher.Constraint("Coincident", 3, 2, 4, 1))
sketch10.addConstraint(Sketcher.Constraint("Coincident", 4, 2, 5, 1))
sketch10.addConstraint(Sketcher.Constraint("Coincident", 5, 2, 6, 1))
sketch10.addConstraint(Sketcher.Constraint("Coincident", 6, 2, 7, 1))
sketch10.addConstraint(Sketcher.Constraint("Coincident", 7, 2, 8, 1))
sketch10.addConstraint(Sketcher.Constraint("Coincident", 8, 2, 9, 1))
sketch10.addConstraint(Sketcher.Constraint("Coincident", 9, 2, 0, 2))
sketch10.addConstraint(Sketcher.Constraint("Coincident", 10, 2, 11, 2))
sketch10.addConstraint(Sketcher.Constraint("Coincident", 11, 1, 12, 1))
sketch10.addConstraint(Sketcher.Constraint("Coincident", 12, 2, 13, 1))
sketch10.addConstraint(Sketcher.Constraint("Coincident", 13, 2, 14, 1))
sketch10.addConstraint(Sketcher.Constraint("Coincident", 14, 2, 15, 1))
sketch10.addConstraint(Sketcher.Constraint("Coincident", 15, 2, 16, 1))
sketch10.addConstraint(Sketcher.Constraint("Coincident", 16, 2, 17, 1))
sketch10.addConstraint(Sketcher.Constraint("Coincident", 17, 2, 18, 1))
sketch10.addConstraint(Sketcher.Constraint("Coincident", 18, 2, 19, 1))
sketch10.addConstraint(Sketcher.Constraint("Coincident", 19, 2, 10, 1))
sketch10.addConstraint(Sketcher.Constraint("Vertical", 1))
sketch10.addConstraint(Sketcher.Constraint("Horizontal", 2))
sketch10.addConstraint(Sketcher.Constraint("Vertical", 3))
sketch10.addConstraint(Sketcher.Constraint("Horizontal", 4))
sketch10.addConstraint(Sketcher.Constraint("Horizontal", 6))
sketch10.addConstraint(Sketcher.Constraint("Vertical", 7))
sketch10.addConstraint(Sketcher.Constraint("Horizontal", 8))
sketch10.addConstraint(Sketcher.Constraint("Vertical", 9))
sketch10.addConstraint(Sketcher.Constraint("Vertical", 10))
sketch10.addConstraint(Sketcher.Constraint("Vertical", 12))
sketch10.addConstraint(Sketcher.Constraint("Horizontal", 13))
sketch10.addConstraint(Sketcher.Constraint("Vertical", 14))
sketch10.addConstraint(Sketcher.Constraint("Horizontal", 15))
sketch10.addConstraint(Sketcher.Constraint("Horizontal", 17))
sketch10.addConstraint(Sketcher.Constraint("Vertical", 18))
sketch10.addConstraint(Sketcher.Constraint("Horizontal", 19))
sketch10.addConstraint(Sketcher.Constraint("Coincident", 5, 3, 0, 3))
sketch10.addConstraint(Sketcher.Constraint("Coincident", 16, 3, 11, 3))
sketch10.addConstraint(Sketcher.Constraint("Symmetric", 4, 2, 5, 2, -2))
sketch10.addConstraint(Sketcher.Constraint("Symmetric", 2, 2, 7, 2, -2))
sketch10.addConstraint(Sketcher.Constraint("Symmetric", 10, 2, 11, 1, -2))
sketch10.addConstraint(Sketcher.Constraint("Symmetric", 14, 2, 17, 2, -2))
sketch10.addConstraint(Sketcher.Constraint("Horizontal", 0, 1, 9, 2))
sketch10.addConstraint(Sketcher.Constraint("Horizontal", 13, 2, 18, 2))
sketch10.addConstraint(Sketcher.Constraint("Equal", 8, 13))
sketch10.addConstraint(Sketcher.Constraint("Radius", 11, 16.0))
sketch10.addConstraint(Sketcher.Constraint("DistanceY", 1, 2, 1, 1, 6.0))
sketch10.addConstraint(Sketcher.Constraint("DistanceY", 10, 1, 10, 2, 18.0))
sketch10.addConstraint(Sketcher.Constraint("Radius", 5, 6.55))
sketch10.addConstraint(Sketcher.Constraint("DistanceY", -1, 1, 0, 3, 16.0))
sketch10.addConstraint(Sketcher.Constraint("DistanceX", -1, 1, 0, 1, 3.0))
sketch10.addConstraint(Sketcher.Constraint("DistanceY", -1, 1, 0, 1, 21.0))
sketch10.addConstraint(Sketcher.Constraint("DistanceX", 10, 2, -1, 1, 6.0))
sketch10.addConstraint(Sketcher.Constraint("DistanceY", -1, 1, 10, 2, 2.0))
sketch10.addConstraint(Sketcher.Constraint("DistanceX", 2, 1, 2, 2, 0.75))
sketch10.addConstraint(Sketcher.Constraint("DistanceX", 4, 2, 4, 1, 0.446901))
sketch10.addConstraint(Sketcher.Constraint("DistanceX", 15, 2, 15, 1, 0.584899))
sketch10.addConstraint(Sketcher.Constraint("Radius", 16, 17.150627))
pad8 = doc.addObject("PartDesign::Pad", "Pad007")
body.addObject(pad8)
pad8.Profile = sketch10
pad8.Length = 0.5

sketch11 = doc.addObject("Sketcher::SketchObject", "Sketch010")
body.addObject(sketch11)
sketch11.AttachmentSupport = (doc.XY_Plane, [""])
sketch11.MapMode = "FlatFace"
sketch11.AttachmentOffset = App.Placement(Vector(0, 0, 2), App.Rotation())
add_polygon(sketch11, [(-1, 39.2), (-1, 36.2), (1, 36.2), (1, 39.2)])
add_polygon(sketch11, [(-9.125915, 28.857394), (-11, 31.2), (-12.171303, 30.262957), (-10.297218, 27.920351)])
add_polygon(sketch11, [(-19.954612, 20.194436), (-21.828697, 22.537043), (-23, 21.6), (-21.125915, 19.257394)])
add_polygon(sketch11, [(21.828697, 22.537043), (19.954612, 20.194436), (21.125915, 19.257394), (23, 21.6)])
add_polygon(sketch11, [(12.171303, 30.262957), (11, 31.2), (9.125915, 28.857394), (10.297218, 27.920351)])
sketch11.addConstraint(Sketcher.Constraint("Vertical", 0))
sketch11.addConstraint(Sketcher.Constraint("Horizontal", 1))
sketch11.addConstraint(Sketcher.Constraint("Vertical", 2))
sketch11.addConstraint(Sketcher.Constraint("Horizontal", 3))
sketch11.addConstraint(Sketcher.Constraint("Symmetric", 11, 2, 12, 2, -2))
sketch11.addConstraint(Sketcher.Constraint("Symmetric", 10, 2, 13, 2, -2))
sketch11.addConstraint(Sketcher.Constraint("Symmetric", 9, 2, 14, 2, -2))
sketch11.addConstraint(Sketcher.Constraint("Symmetric", 8, 2, 15, 2, -2))
sketch11.addConstraint(Sketcher.Constraint("Symmetric", 4, 2, 16, 2, -2))
sketch11.addConstraint(Sketcher.Constraint("Symmetric", 7, 2, 17, 2, -2))
sketch11.addConstraint(Sketcher.Constraint("Symmetric", 6, 2, 18, 2, -2))
sketch11.addConstraint(Sketcher.Constraint("Symmetric", 5, 2, 19, 2, -2))
sketch11.addConstraint(Sketcher.Constraint("Perpendicular", 4, 5))
sketch11.addConstraint(Sketcher.Constraint("Perpendicular", 5, 6))
sketch11.addConstraint(Sketcher.Constraint("Perpendicular", 6, 7))
sketch11.addConstraint(Sketcher.Constraint("Perpendicular", 7, 8))
sketch11.addConstraint(Sketcher.Constraint("Perpendicular", 8, 9))
sketch11.addConstraint(Sketcher.Constraint("Perpendicular", 9, 10))
sketch11.addConstraint(Sketcher.Constraint("Perpendicular", 10, 11))
sketch11.addConstraint(Sketcher.Constraint("Equal", 6, 8))
sketch11.addConstraint(Sketcher.Constraint("Equal", 7, 9))
sketch11.addConstraint(Sketcher.Constraint("DistanceX", 1, 1, 1, 2, 2.0))
sketch11.addConstraint(Sketcher.Constraint("DistanceY", 0, 2, 0, 1, 3.0))
sketch11.addConstraint(Sketcher.Constraint("Distance", 4, 3.0))
sketch11.addConstraint(Sketcher.Constraint("DistanceX", 0, 2, -1, 1, 1.0))
sketch11.addConstraint(Sketcher.Constraint("DistanceX", 4, 2, -1, 1, 11.0))
sketch11.addConstraint(Sketcher.Constraint("DistanceX", 9, 2, -1, 1, 23.0))
sketch11.addConstraint(Sketcher.Constraint("DistanceY", 4, 2, 0, 2, 5.0))
sketch11.addConstraint(Sketcher.Constraint("Distance", 5, 1.5))
sketch11.addConstraint(Sketcher.Constraint("DistanceY", -1, 1, 0, 2, 36.2))
sketch11.addConstraint(Sketcher.Constraint("DistanceY", -1, 1, 9, 2, 21.6))
sketch11.addConstraint(Sketcher.Constraint("DistanceX", 6, 2, -1, 1, 10.297218))
pad9 = doc.addObject("PartDesign::Pad", "Pad008")
body.addObject(pad9)
pad9.Profile = sketch11
pad9.Length = 5

sketch12 = doc.addObject("Sketcher::SketchObject", "Sketch011")
body.addObject(sketch12)
sketch12.Placement = App.Placement(Vector(-3.487805, -2.790244, 0), App.Rotation(Vector(0.624695048, -0.780868809, 0), Vector(0, 0, 1), Vector(-0.780868809, -0.624695048, 0), "ZXY"))
add_polygon(sketch12, [(-28.234752, 7), (-29.234752, 7), (-28.234752, 3.5)])
sketch12.addConstraint(Sketcher.Constraint("Horizontal", 0))
sketch12.addConstraint(Sketcher.Constraint("Vertical", 2))
sketch12.addConstraint(Sketcher.Constraint("DistanceX", 0, 2, 0, 1, 1.0))
sketch12.addConstraint(Sketcher.Constraint("DistanceY", 2, 1, 2, 2, 3.5))
sketch12.addConstraint(Sketcher.Constraint("DistanceY", -1, 1, 0, 2, 7.0))
sketch12.addConstraint(Sketcher.Constraint("DistanceX", 0, 2, -1, 1, 29.234752))
pocket3 = doc.addObject("PartDesign::Pocket", "Pocket002")
body.addObject(pocket3)
pocket3.Profile = sketch12
pocket3.Length = 20

sketch13 = doc.addObject("Sketcher::SketchObject", "Sketch012")
body.addObject(sketch13)
sketch13.Placement = App.Placement(Vector(3.487805, -2.790244, 0), App.Rotation(Vector(0.624695048, 0.780868809, 0), Vector(0, 0, 1), Vector(0.780868809, -0.624695048, 0), "ZXY"))
add_polygon(sketch13, [(28.234752, 7), (28.234752, 3.5), (29.234752, 7)])
sketch13.addConstraint(Sketcher.Constraint("Vertical", 0))
sketch13.addConstraint(Sketcher.Constraint("Horizontal", 2))
sketch13.addConstraint(Sketcher.Constraint("DistanceX", 2, 2, 2, 1, 1.0))
sketch13.addConstraint(Sketcher.Constraint("DistanceY", 0, 2, 0, 1, 3.5))
sketch13.addConstraint(Sketcher.Constraint("DistanceY", -1, 1, 1, 2, 7.0))
sketch13.addConstraint(Sketcher.Constraint("DistanceX", -1, 1, 0, 2, 28.234752))
pocket4 = doc.addObject("PartDesign::Pocket", "Pocket003")
body.addObject(pocket4)
pocket4.Profile = sketch13
pocket4.Length = 20

doc.recompute()
